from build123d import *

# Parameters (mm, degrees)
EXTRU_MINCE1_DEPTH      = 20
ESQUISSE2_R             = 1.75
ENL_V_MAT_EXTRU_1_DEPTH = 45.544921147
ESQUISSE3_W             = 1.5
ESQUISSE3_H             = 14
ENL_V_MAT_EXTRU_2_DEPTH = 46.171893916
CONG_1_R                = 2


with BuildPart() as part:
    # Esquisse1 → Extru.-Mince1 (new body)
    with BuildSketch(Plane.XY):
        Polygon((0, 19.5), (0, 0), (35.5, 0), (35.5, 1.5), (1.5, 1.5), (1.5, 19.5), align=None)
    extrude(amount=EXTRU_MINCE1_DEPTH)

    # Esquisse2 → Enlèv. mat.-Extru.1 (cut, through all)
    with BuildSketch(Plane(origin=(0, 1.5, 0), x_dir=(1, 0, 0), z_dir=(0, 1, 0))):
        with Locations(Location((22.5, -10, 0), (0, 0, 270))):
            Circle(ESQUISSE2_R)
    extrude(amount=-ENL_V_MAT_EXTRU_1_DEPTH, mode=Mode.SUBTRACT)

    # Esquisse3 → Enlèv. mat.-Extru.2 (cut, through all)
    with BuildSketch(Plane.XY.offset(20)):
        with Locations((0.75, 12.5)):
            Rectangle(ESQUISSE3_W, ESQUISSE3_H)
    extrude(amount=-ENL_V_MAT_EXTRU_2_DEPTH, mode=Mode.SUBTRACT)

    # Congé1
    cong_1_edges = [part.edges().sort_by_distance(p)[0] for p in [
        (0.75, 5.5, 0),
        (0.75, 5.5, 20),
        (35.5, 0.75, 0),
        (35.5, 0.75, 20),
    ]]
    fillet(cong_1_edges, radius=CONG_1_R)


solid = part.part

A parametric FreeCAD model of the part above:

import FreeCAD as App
import Part
import Sketcher

V = App.Vector
Q = App.Units.Quantity


def edges_at(feature, points):
    """Names of the edges that pass closest to the given points."""
    edges = feature.Shape.Edges
    near = lambda p: min(range(len(edges)), key=lambda i: edges[i].distToShape(Part.Vertex(*p))[0])
    return sorted({f"Edge{near(p) + 1}" for p in points})

doc = App.newDocument("Part")
body = doc.addObject("PartDesign::Body", "Body")

# Sketch on XY plane
sketch1 = doc.addObject("Sketcher::SketchObject", "Sketch")
body.addObject(sketch1)
sketch1.AttachmentSupport = (doc.XY_Plane, [""])
sketch1.MapMode = "FlatFace"
sketch1.addGeometry([
    Part.LineSegment(V(0, 19.5, 0), V(0, 0, 0)),  # 0
    Part.LineSegment(V(0, 0, 0), V(35.5, 0, 0)),  # 1
    Part.LineSegment(V(35.5, 0, 0), V(35.5, 1.5, 0)),  # 2
    Part.LineSegment(V(35.5, 1.5, 0), V(1.5, 1.5, 0)),  # 3
    Part.LineSegment(V(1.5, 1.5, 0), V(1.5, 19.5, 0)),  # 4
    Part.LineSegment(V(1.5, 19.5, 0), V(0, 19.5, 0)),  # 5
], False)
sketch1.addConstraint([
    Sketcher.Constraint("Coincident", 0, 2, 1, 1),
    Sketcher.Constraint("Coincident", 1, 2, 2, 1),
    Sketcher.Constraint("Coincident", 2, 2, 3, 1),
    Sketcher.Constraint("Coincident", 3, 2, 4, 1),
    Sketcher.Constraint("Coincident", 4, 2, 5, 1),
    Sketcher.Constraint("Coincident", 5, 2, 0, 1),
    Sketcher.Constraint("Vertical", 0),
    Sketcher.Constraint("Horizontal", 1),
    Sketcher.Constraint("Vertical", 2),
    Sketcher.Constraint("Horizontal", 3),
    Sketcher.Constraint("Vertical", 4),
    Sketcher.Constraint("Horizontal", 5),
    Sketcher.Constraint("Coincident", 0, 2, -1, 1),
    Sketcher.Constraint("Equal", 5, 2),
    Sketcher.Constraint("DistanceX", 3, 2, 3, 1, Q("34 mm")),
    Sketcher.Constraint("DistanceY", 4, 1, 4, 2, Q("18 mm")),
    Sketcher.Constraint("DistanceX", 1, 1, 1, 2, Q("35.5 mm")),
])
pad1 = doc.addObject("PartDesign::Pad", "Pad")
body.addObject(pad1)
pad1.Profile = sketch1
pad1.Length = 20

# Sketch on XZ plane
sketch2 = doc.addObject("Sketcher::SketchObject", "Sketch001")
body.addObject(sketch2)
sketch2.AttachmentSupport = (doc.XZ_Plane, [""])
sketch2.MapMode = "FlatFace"
sketch2.AttachmentOffset = App.Placement(V(0, 0, -1.5), App.Rotation())
sketch2.addGeometry(Part.Circle(V(22.5, 10, 0), V(0, 0, 1), 1.8), False)
sketch2.addConstraint([
    Sketcher.Constraint("Diameter", 0, Q("3.5 mm")),
    Sketcher.Constraint("DistanceY", -1, 1, 0, 3, Q("10 mm")),
    Sketcher.Constraint("DistanceX", -1, 1, 0, 3, Q("22.5 mm")),
])
pocket1 = doc.addObject("PartDesign::Pocket", "Pocket")
body.addObject(pocket1)
pocket1.Profile = sketch2
pocket1.Type = "ThroughAll"
pocket1.Reversed = True

# Sketch on XY plane
sketch3 = doc.addObject("Sketcher::SketchObject", "Sketch002")
body.addObject(sketch3)
sketch3.AttachmentSupport = (doc.XY_Plane, [""])
sketch3.MapMode = "FlatFace"
sketch3.AttachmentOffset = App.Placement(V(0, 0, 20), App.Rotation())
sketch3.addGeometry([
    Part.LineSegment(V(0, 19.5, 0), V(0, 5.5, 0)),
    Part.LineSegment(V(0, 5.5, 0), V(1.5, 5.5, 0)),
    Part.LineSegment(V(1.5, 5.5, 0), V(1.5, 19.5, 0)),
    Part.LineSegment(V(1.5, 19.5, 0), V(0, 19.5, 0)),
], False)
sketch3.addConstraint([
    Sketcher.Constraint("Coincident", 0, 2, 1, 1),
    Sketcher.Constraint("Coincident", 1, 2, 2, 1),
    Sketcher.Constraint("Coincident", 2, 2, 3, 1),
    Sketcher.Constraint("Coincident", 3, 2, 0, 1),
    Sketcher.Constraint("Vertical", 0),
    Sketcher.Constraint("Horizontal", 1),
    Sketcher.Constraint("Vertical", 2),
    Sketcher.Constraint("Horizontal", 3),
    Sketcher.Constraint("PointOnObject", 0, 2, -2),
    Sketcher.Constraint("DistanceY", 0, 2, 0, 1, Q("14 mm")),
    Sketcher.Constraint("DistanceX", 1, 1, 1, 2, Q("1.5 mm")),
    Sketcher.Constraint("DistanceY", -1, 1, 0, 2, Q("5.5 mm")),
])
pocket2 = doc.addObject("PartDesign::Pocket", "Pocket001")
body.addObject(pocket2)
pocket2.Profile = sketch3
pocket2.Type = "ThroughAll"
doc.recompute()

fillet = doc.addObject("PartDesign::Fillet", "Fillet")
body.addObject(fillet)
fillet.Base = (pocket2, edges_at(pocket2, [
    (0.75, 5.5, 0),
    (0.75, 5.5, 20),
    (35.5, 0.75, 0),
    (35.5, 0.75, 20),
]))
fillet.Radius = 2

doc.recompute()
